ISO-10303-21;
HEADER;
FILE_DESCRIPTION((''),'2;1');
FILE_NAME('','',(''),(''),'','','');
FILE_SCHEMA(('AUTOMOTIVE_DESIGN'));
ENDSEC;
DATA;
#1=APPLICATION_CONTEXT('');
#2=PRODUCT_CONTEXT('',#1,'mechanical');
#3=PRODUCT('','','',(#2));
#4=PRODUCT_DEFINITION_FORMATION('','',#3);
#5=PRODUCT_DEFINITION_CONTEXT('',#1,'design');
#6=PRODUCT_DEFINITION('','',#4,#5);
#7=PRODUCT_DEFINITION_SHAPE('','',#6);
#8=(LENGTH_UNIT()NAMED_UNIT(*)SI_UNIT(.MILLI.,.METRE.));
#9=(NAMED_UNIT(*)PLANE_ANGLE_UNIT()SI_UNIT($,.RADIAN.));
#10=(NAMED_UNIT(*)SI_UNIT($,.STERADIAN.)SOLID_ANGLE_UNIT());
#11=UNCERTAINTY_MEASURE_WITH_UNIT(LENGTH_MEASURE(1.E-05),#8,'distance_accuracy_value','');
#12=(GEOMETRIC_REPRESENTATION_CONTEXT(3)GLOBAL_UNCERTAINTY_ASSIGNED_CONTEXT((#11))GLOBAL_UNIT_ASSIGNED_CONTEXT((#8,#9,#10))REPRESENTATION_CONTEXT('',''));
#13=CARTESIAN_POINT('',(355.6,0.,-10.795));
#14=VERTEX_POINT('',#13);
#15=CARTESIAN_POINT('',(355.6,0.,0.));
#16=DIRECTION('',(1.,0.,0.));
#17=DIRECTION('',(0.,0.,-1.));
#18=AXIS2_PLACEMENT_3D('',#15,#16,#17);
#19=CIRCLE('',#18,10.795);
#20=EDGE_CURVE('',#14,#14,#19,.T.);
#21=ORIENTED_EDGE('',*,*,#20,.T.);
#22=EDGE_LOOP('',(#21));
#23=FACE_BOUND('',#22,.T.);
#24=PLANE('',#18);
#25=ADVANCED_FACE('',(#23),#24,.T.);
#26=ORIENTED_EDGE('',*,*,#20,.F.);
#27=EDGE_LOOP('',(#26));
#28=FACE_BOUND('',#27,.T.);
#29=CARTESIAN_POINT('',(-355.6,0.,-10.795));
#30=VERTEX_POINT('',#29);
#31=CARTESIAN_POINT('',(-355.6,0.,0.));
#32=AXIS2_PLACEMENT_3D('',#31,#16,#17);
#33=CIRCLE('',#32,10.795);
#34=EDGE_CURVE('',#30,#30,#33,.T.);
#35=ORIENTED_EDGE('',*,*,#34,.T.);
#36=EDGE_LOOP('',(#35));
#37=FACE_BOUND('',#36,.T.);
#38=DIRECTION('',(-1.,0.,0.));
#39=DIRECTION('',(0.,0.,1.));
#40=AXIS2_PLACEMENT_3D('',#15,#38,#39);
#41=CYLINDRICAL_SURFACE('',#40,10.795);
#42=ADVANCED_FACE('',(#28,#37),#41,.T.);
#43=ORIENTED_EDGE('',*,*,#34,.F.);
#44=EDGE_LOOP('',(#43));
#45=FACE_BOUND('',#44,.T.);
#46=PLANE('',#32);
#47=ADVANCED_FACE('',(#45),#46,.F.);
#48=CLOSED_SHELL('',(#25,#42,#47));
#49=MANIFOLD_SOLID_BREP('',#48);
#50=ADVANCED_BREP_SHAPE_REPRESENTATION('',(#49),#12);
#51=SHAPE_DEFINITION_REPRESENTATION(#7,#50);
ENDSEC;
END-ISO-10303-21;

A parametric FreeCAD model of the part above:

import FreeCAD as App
import Part
import Sketcher

V = App.Vector
Q = App.Units.Quantity

doc = App.newDocument("Part")
body = doc.addObject("PartDesign::Body", "Body")

sketch1 = body.newObject("Sketcher::SketchObject", "Sketch")
sketch1.AttachmentSupport = (doc.getObject("YZ_Plane"), [""])
sketch1.MapMode = "FlatFace"
sketch1.addGeometry(Part.Circle(V(0, 0, 0), V(0, 0, 1), 11), False)
sketch1.addConstraint([
    Sketcher.Constraint("Coincident", 0, 3, -1, 1),
    Sketcher.Constraint("Diameter", 0, Q("0.85 in")),
])
pad1 = body.newObject("PartDesign::Pad", "Pad")
pad1.Profile = sketch1
pad1.Length = Q("28 in")
pad1.Midplane = True

doc.recompute()
